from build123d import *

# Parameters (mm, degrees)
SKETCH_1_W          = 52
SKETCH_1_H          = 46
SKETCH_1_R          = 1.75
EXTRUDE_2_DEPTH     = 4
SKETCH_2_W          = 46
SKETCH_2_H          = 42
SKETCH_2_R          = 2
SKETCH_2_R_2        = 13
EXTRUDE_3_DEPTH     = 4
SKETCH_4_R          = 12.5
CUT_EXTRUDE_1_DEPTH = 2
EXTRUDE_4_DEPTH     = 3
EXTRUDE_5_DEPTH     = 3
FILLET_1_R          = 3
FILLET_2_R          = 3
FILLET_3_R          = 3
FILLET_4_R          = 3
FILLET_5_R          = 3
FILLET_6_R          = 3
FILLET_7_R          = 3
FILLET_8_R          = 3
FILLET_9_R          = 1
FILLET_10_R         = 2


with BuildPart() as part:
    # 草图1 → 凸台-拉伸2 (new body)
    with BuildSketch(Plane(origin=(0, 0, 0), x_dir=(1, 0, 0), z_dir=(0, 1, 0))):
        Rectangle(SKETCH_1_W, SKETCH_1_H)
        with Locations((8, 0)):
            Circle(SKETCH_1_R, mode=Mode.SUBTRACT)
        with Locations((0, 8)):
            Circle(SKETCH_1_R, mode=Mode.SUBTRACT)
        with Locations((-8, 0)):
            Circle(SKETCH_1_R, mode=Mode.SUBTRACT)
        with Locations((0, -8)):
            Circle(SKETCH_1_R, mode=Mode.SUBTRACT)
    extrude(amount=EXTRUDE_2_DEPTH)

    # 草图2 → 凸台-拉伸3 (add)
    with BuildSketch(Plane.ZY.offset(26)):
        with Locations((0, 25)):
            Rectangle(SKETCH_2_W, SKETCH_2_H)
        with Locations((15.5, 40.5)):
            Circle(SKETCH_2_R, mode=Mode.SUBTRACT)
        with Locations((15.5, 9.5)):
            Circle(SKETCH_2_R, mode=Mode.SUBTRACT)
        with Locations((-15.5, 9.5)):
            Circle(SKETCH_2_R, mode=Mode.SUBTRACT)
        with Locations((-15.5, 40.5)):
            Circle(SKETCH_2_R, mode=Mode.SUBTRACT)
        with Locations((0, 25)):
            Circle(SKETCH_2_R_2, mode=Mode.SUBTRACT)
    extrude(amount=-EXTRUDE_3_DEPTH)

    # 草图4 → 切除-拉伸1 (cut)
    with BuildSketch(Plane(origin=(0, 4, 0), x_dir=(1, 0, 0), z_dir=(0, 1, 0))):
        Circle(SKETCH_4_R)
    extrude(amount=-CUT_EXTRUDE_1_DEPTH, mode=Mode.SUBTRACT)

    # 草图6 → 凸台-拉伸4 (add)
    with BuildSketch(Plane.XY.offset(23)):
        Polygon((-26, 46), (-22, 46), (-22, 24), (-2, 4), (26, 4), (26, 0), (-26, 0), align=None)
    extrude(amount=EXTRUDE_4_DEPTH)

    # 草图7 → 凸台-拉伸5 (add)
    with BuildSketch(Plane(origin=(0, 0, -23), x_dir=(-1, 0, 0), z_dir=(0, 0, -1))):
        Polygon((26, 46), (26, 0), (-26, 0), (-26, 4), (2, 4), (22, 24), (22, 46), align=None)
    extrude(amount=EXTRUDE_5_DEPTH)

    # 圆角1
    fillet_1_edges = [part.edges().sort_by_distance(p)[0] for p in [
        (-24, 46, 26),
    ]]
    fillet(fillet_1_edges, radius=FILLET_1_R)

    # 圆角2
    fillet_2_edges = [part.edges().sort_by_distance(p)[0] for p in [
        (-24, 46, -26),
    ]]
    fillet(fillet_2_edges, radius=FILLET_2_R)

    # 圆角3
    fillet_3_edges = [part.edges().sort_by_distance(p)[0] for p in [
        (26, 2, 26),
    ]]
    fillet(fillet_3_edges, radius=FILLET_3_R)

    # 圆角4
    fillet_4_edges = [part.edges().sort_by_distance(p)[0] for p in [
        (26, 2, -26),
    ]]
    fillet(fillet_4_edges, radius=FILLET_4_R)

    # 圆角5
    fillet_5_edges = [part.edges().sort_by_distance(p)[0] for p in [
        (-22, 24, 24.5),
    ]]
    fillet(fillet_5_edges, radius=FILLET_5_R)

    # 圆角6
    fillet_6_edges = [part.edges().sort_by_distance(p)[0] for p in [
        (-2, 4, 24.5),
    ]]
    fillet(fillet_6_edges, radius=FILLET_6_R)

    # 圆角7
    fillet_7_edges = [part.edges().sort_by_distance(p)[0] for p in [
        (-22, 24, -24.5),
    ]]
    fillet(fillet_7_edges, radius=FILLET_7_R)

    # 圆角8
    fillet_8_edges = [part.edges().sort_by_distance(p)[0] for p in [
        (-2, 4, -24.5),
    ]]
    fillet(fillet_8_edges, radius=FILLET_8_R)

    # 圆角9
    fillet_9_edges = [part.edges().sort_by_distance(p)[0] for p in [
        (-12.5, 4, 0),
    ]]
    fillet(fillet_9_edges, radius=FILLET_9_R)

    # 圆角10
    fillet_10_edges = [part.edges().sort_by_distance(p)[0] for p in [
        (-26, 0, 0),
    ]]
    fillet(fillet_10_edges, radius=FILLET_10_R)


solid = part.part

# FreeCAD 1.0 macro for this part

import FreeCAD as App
import Part
import Sketcher
from FreeCAD import Vector
Q = App.Units.Quantity


def edges_at(feature, points):
    """Names of the edges that pass closest to the given points."""
    edges = feature.Shape.Edges
    near = lambda p: min(range(len(edges)), key=lambda i: edges[i].distToShape(Part.Vertex(*p))[0])
    return sorted({f"Edge{near(p) + 1}" for p in points})

doc = App.newDocument("Part")
params = doc.addObject("Spreadsheet::Sheet", "Params")
for row, (alias, value) in enumerate([
    ("sketch1_diameter", "3.5 mm"),
    ("sketch1_width", "52 mm"),
    ("sketch1_height", "46 mm"),
    ("pad1_length", "4 mm"),
    ("sketch2_diameter", "4 mm"),
    ("sketch2_diameter2", "26 mm"),
    ("sketch2_width", "42 mm"),
    ("sketch2_height", "46 mm"),
    ("pad2_length", "4 mm"),
    ("sketch3_diameter", "25 mm"),
    ("pocket1_length", "2 mm"),
    ("sketch4_width", "4 mm"),
    ("sketch4_width2", "52 mm"),
    ("sketch4_width3", "28 mm"),
    ("sketch4_height", "46 mm"),
    ("sketch4_height2", "22 mm"),
    ("pad3_length", "3 mm"),
    ("sketch5_width", "4 mm"),
    ("sketch5_width2", "28 mm"),
    ("sketch5_width3", "52 mm"),
    ("sketch5_height", "46 mm"),
    ("sketch5_height2", "22 mm"),
    ("pad4_length", "3 mm"),
    ("fillet_radius", "3 mm"),
    ("fillet2_radius", "3 mm"),
    ("fillet3_radius", "3 mm"),
    ("fillet4_radius", "3 mm"),
    ("fillet5_radius", "3 mm"),
    ("fillet6_radius", "3 mm"),
    ("fillet7_radius", "3 mm"),
    ("fillet8_radius", "3 mm"),
    ("fillet9_radius", "1 mm"),
    ("fillet10_radius", "2 mm"),
], start=1):
    params.set(f"A{row}", alias)
    params.set(f"B{row}", "=" + value)
    params.setAlias(f"B{row}", alias)

body = doc.addObject("PartDesign::Body", "Body")

sketch1 = body.newObject("Sketcher::SketchObject", "Sketch")
sketch1.AttachmentSupport = (doc.getObject("XZ_Plane"), [""])
sketch1.MapMode = "FlatFace"
sketch1.addGeometry([
    Part.LineSegment(Vector(-26, -23, 0), Vector(-26, 23, 0)),
    Part.LineSegment(Vector(-26, 23, 0), Vector(26, 23, 0)),
    Part.LineSegment(Vector(26, 23, 0), Vector(26, -23, 0)),
    Part.LineSegment(Vector(26, -23, 0), Vector(-26, -23, 0)),
    Part.Circle(Vector(0, 8, 0), Vector(0, 0, 1), 1.8),
    Part.Circle(Vector(-8, 0, 0), Vector(0, 0, 1), 1.8),
    Part.Circle(Vector(8, 0, 0), Vector(0, 0, 1), 1.8),
    Part.Circle(Vector(0, -8, 0), Vector(0, 0, 1), 1.8),
], False)
sketch1.addConstraint([
    Sketcher.Constraint("Coincident", 0, 2, 1, 1),
    Sketcher.Constraint("Coincident", 1, 2, 2, 1),
    Sketcher.Constraint("Coincident", 2, 2, 3, 1),
    Sketcher.Constraint("Coincident", 3, 2, 0, 1),
    Sketcher.Constraint("Vertical", 0),
    Sketcher.Constraint("Horizontal", 1),
    Sketcher.Constraint("Vertical", 2),
    Sketcher.Constraint("Horizontal", 3),
    Sketcher.Constraint("Equal", 4, 5),
    Sketcher.Constraint("Equal", 5, 6),
    Sketcher.Constraint("Equal", 6, 7),
    Sketcher.Constraint("Symmetric", 5, 3, 6, 3, -1, 1),
    Sketcher.Constraint("Symmetric", 4, 3, 7, 3, -1, 1),
    Sketcher.Constraint("Symmetric", 0, 2, 2, 2, -1, 1),
    Sketcher.Constraint("PointOnObject", 4, 3, -2),
    Sketcher.Constraint("PointOnObject", 5, 3, -1),
    Sketcher.Constraint("Diameter", 4, Q("3.5 mm")),
    Sketcher.Constraint("DistanceX", 1, 1, 1, 2, Q("52 mm")),
    Sketcher.Constraint("DistanceY", 0, 1, 0, 2, Q("46 mm")),
    Sketcher.Constraint("DistanceY", -1, 1, 4, 3, Q("8 mm")),
    Sketcher.Constraint("DistanceX", 5, 3, -1, 1, Q("8 mm")),
])
sketch1.setExpression("Constraints[16]", "Params.sketch1_diameter")
sketch1.setExpression("Constraints[17]", "Params.sketch1_width")
sketch1.setExpression("Constraints[18]", "Params.sketch1_height")
pad1 = body.newObject("PartDesign::Pad", "Pad")
pad1.Profile = sketch1
pad1.setExpression("Length", "Params.pad1_length")
pad1.Reversed = True

sketch2 = body.newObject("Sketcher::SketchObject", "Sketch001")
sketch2.AttachmentSupport = (doc.getObject("YZ_Plane"), [""])
sketch2.MapMode = "FlatFace"
sketch2.AttachmentOffset = App.Placement(Vector(0, 0, -26), App.Rotation())
sketch2.addGeometry([
    Part.LineSegment(Vector(46, -23, 0), Vector(4, -23, 0)),
    Part.LineSegment(Vector(4, -23, 0), Vector(4, 23, 0)),
    Part.LineSegment(Vector(4, 23, 0), Vector(46, 23, 0)),
    Part.LineSegment(Vector(46, 23, 0), Vector(46, -23, 0)),
    Part.Circle(Vector(9.5, -15.5, 0), Vector(0, 0, 1), 2),
    Part.Circle(Vector(9.5, 15.5, 0), Vector(0, 0, 1), 2),
    Part.Circle(Vector(40.5, -15.5, 0), Vector(0, 0, 1), 2),
    Part.Circle(Vector(25, 0, 0), Vector(0, 0, 1), 13),
    Part.Circle(Vector(40.5, 15.5, 0), Vector(0, 0, 1), 2),
], False)
sketch2.addConstraint([
    Sketcher.Constraint("Coincident", 0, 2, 1, 1),
    Sketcher.Constraint("Coincident", 1, 2, 2, 1),
    Sketcher.Constraint("Coincident", 2, 2, 3, 1),
    Sketcher.Constraint("Coincident", 3, 2, 0, 1),
    Sketcher.Constraint("Horizontal", 0),
    Sketcher.Constraint("Vertical", 1),
    Sketcher.Constraint("Horizontal", 2),
    Sketcher.Constraint("Vertical", 3),
    Sketcher.Constraint("Equal", 4, 5),
    Sketcher.Constraint("Equal", 5, 6),
    Sketcher.Constraint("Equal", 6, 8),
    Sketcher.Constraint("Symmetric", 4, 3, 5, 3, -1),
    Sketcher.Constraint("Symmetric", 6, 3, 8, 3, -1),
    Sketcher.Constraint("PointOnObject", 7, 3, -1),
    Sketcher.Constraint("Horizontal", 4, 3, 6, 3),
    Sketcher.Constraint("Diameter", 4, Q("4 mm")),
    Sketcher.Constraint("Diameter", 7, Q("26 mm")),
    Sketcher.Constraint("DistanceX", 0, 2, 0, 1, Q("42 mm")),
    Sketcher.Constraint("DistanceY", 1, 1, 1, 2, Q("46 mm")),
    Sketcher.Constraint("DistanceX", -1, 1, 7, 3, Q("25 mm")),
    Sketcher.Constraint("DistanceX", -1, 1, 0, 2, Q("4 mm")),
    Sketcher.Constraint("DistanceY", 0, 2, -1, 1, Q("23 mm")),
    Sketcher.Constraint("DistanceY", 4, 3, 5, 3, Q("31 mm")),
    Sketcher.Constraint("DistanceX", 4, 3, 6, 3, Q("31 mm")),
    Sketcher.Constraint("DistanceX", -1, 1, 4, 3, Q("9.5 mm")),
])
sketch2.setExpression("Constraints[15]", "Params.sketch2_diameter")
sketch2.setExpression("Constraints[16]", "Params.sketch2_diameter2")
sketch2.setExpression("Constraints[17]", "Params.sketch2_width")
sketch2.setExpression("Constraints[18]", "Params.sketch2_height")
pad2 = body.newObject("PartDesign::Pad", "Pad001")
pad2.Profile = sketch2
pad2.setExpression("Length", "Params.pad2_length")

sketch3 = body.newObject("Sketcher::SketchObject", "Sketch002")
sketch3.AttachmentSupport = (doc.getObject("XZ_Plane"), [""])
sketch3.MapMode = "FlatFace"
sketch3.AttachmentOffset = App.Placement(Vector(0, 0, -4), App.Rotation())
sketch3.addGeometry(Part.Circle(Vector(0, 0, 0), Vector(0, 0, 1), 12), False)
sketch3.addConstraint([
    Sketcher.Constraint("Coincident", 0, 3, -1, 1),
    Sketcher.Constraint("Diameter", 0, Q("25 mm")),
])
sketch3.setExpression("Constraints[1]", "Params.sketch3_diameter")
pocket1 = body.newObject("PartDesign::Pocket", "Pocket")
pocket1.Profile = sketch3
pocket1.setExpression("Length", "Params.pocket1_length")
pocket1.Reversed = True

sketch4 = body.newObject("Sketcher::SketchObject", "Sketch003")
sketch4.AttachmentSupport = (doc.getObject("XY_Plane"), [""])
sketch4.MapMode = "FlatFace"
sketch4.AttachmentOffset = App.Placement(Vector(0, 0, 23), App.Rotation())
sketch4.addGeometry([
    Part.LineSegment(Vector(-22, 46, 0), Vector(-26, 46, 0)),
    Part.LineSegment(Vector(-26, 46, 0), Vector(-26, 0, 0)),
    Part.LineSegment(Vector(-26, 0, 0), Vector(26, 0, 0)),
    Part.LineSegment(Vector(26, 0, 0), Vector(26, 4, 0)),
    Part.LineSegment(Vector(26, 4, 0), Vector(-2, 4, 0)),
    Part.LineSegment(Vector(-2, 4, 0), Vector(-22, 24, 0)),
    Part.LineSegment(Vector(-22, 24, 0), Vector(-22, 46, 0)),
], False)
sketch4.addConstraint([
    Sketcher.Constraint("Coincident", 0, 2, 1, 1),
    Sketcher.Constraint("Coincident", 1, 2, 2, 1),
    Sketcher.Constraint("Coincident", 2, 2, 3, 1),
    Sketcher.Constraint("Coincident", 3, 2, 4, 1),
    Sketcher.Constraint("Coincident", 4, 2, 5, 1),
    Sketcher.Constraint("Coincident", 5, 2, 6, 1),
    Sketcher.Constraint("Coincident", 6, 2, 0, 1),
    Sketcher.Constraint("Horizontal", 0),
    Sketcher.Constraint("Vertical", 1),
    Sketcher.Constraint("Horizontal", 2),
    Sketcher.Constraint("Vertical", 3),
    Sketcher.Constraint("Horizontal", 4),
    Sketcher.Constraint("Vertical", 6),
    Sketcher.Constraint("Symmetric", 1, 2, 2, 2, -1, 1),
    Sketcher.Constraint("Equal", 0, 3),
    Sketcher.Constraint("DistanceX", 0, 2, 0, 1, Q("4 mm")),
    Sketcher.Constraint("DistanceX", 2, 1, 2, 2, Q("52 mm")),
    Sketcher.Constraint("DistanceX", 4, 2, 4, 1, Q("28 mm")),
    Sketcher.Constraint("DistanceY", 1, 2, 1, 1, Q("46 mm")),
    Sketcher.Constraint("DistanceY", 6, 1, 6, 2, Q("22 mm")),
])
sketch4.setExpression("Constraints[15]", "Params.sketch4_width")
sketch4.setExpression("Constraints[16]", "Params.sketch4_width2")
sketch4.setExpression("Constraints[17]", "Params.sketch4_width3")
sketch4.setExpression("Constraints[18]", "Params.sketch4_height")
sketch4.setExpression("Constraints[19]", "Params.sketch4_height2")
pad3 = body.newObject("PartDesign::Pad", "Pad002")
pad3.Profile = sketch4
pad3.setExpression("Length", "Params.pad3_length")

sketch5 = body.newObject("Sketcher::SketchObject", "Sketch004")
sketch5.AttachmentSupport = (doc.getObject("XY_Plane"), [""])
sketch5.MapMode = "FlatFace"
sketch5.AttachmentOffset = App.Placement(Vector(0, 0, -23), App.Rotation())
sketch5.addGeometry([
    Part.LineSegment(Vector(-26, 0, 0), Vector(-26, 46, 0)),
    Part.LineSegment(Vector(-26, 46, 0), Vector(-22, 46, 0)),
    Part.LineSegment(Vector(-22, 46, 0), Vector(-22, 24, 0)),
    Part.LineSegment(Vector(-22, 24, 0), Vector(-2, 4, 0)),
    Part.LineSegment(Vector(-2, 4, 0), Vector(26, 4, 0)),
    Part.LineSegment(Vector(26, 4, 0), Vector(26, 0, 0)),
    Part.LineSegment(Vector(26, 0, 0), Vector(-26, 0, 0)),
], False)
sketch5.addConstraint([
    Sketcher.Constraint("Coincident", 0, 2, 1, 1),
    Sketcher.Constraint("Coincident", 1, 2, 2, 1),
    Sketcher.Constraint("Coincident", 2, 2, 3, 1),
    Sketcher.Constraint("Coincident", 3, 2, 4, 1),
    Sketcher.Constraint("Coincident", 4, 2, 5, 1),
    Sketcher.Constraint("Coincident", 5, 2, 6, 1),
    Sketcher.Constraint("Coincident", 6, 2, 0, 1),
    Sketcher.Constraint("Vertical", 0),
    Sketcher.Constraint("Horizontal", 1),
    Sketcher.Constraint("Vertical", 2),
    Sketcher.Constraint("Horizontal", 4),
    Sketcher.Constraint("Vertical", 5),
    Sketcher.Constraint("Horizontal", 6),
    Sketcher.Constraint("Symmetric", 5, 2, 6, 2, -1, 1),
    Sketcher.Constraint("Equal", 1, 5),
    Sketcher.Constraint("DistanceX", 1, 1, 1, 2, Q("4 mm")),
    Sketcher.Constraint("DistanceX", 4, 1, 4, 2, Q("28 mm")),
    Sketcher.Constraint("DistanceX", 6, 2, 6, 1, Q("52 mm")),
    Sketcher.Constraint("DistanceY", 0, 1, 0, 2, Q("46 mm")),
    Sketcher.Constraint("DistanceY", 2, 2, 2, 1, Q("22 mm")),
])
sketch5.setExpression("Constraints[15]", "Params.sketch5_width")
sketch5.setExpression("Constraints[16]", "Params.sketch5_width2")
sketch5.setExpression("Constraints[17]", "Params.sketch5_width3")
sketch5.setExpression("Constraints[18]", "Params.sketch5_height")
sketch5.setExpression("Constraints[19]", "Params.sketch5_height2")
pad4 = body.newObject("PartDesign::Pad", "Pad003")
pad4.Profile = sketch5
pad4.setExpression("Length", "Params.pad4_length")
pad4.Reversed = True
doc.recompute()

fillet = body.newObject("PartDesign::Fillet", "Fillet")
fillet.Base = (pad4, edges_at(pad4, [(-24, 46, 26)]))
fillet.setExpression("Radius", "Params.fillet_radius")
doc.recompute()

fillet2 = body.newObject("PartDesign::Fillet", "Fillet001")
fillet2.Base = (fillet, edges_at(fillet, [(-24, 46, -26)]))
fillet2.setExpression("Radius", "Params.fillet2_radius")
doc.recompute()

fillet3 = body.newObject("PartDesign::Fillet", "Fillet002")
fillet3.Base = (fillet2, edges_at(fillet2, [(26, 2, 26)]))
fillet3.setExpression("Radius", "Params.fillet3_radius")
doc.recompute()

fillet4 = body.newObject("PartDesign::Fillet", "Fillet003")
fillet4.Base = (fillet3, edges_at(fillet3, [(26, 2, -26)]))
fillet4.setExpression("Radius", "Params.fillet4_radius")
doc.recompute()

fillet5 = body.newObject("PartDesign::Fillet", "Fillet004")
fillet5.Base = (fillet4, edges_at(fillet4, [(-22, 24, 24.5)]))
fillet5.setExpression("Radius", "Params.fillet5_radius")
doc.recompute()

fillet6 = body.newObject("PartDesign::Fillet", "Fillet005")
fillet6.Base = (fillet5, edges_at(fillet5, [(-2, 4, 24.5)]))
fillet6.setExpression("Radius", "Params.fillet6_radius")
doc.recompute()

fillet7 = body.newObject("PartDesign::Fillet", "Fillet006")
fillet7.Base = (fillet6, edges_at(fillet6, [(-22, 24, -24.5)]))
fillet7.setExpression("Radius", "Params.fillet7_radius")
doc.recompute()

fillet8 = body.newObject("PartDesign::Fillet", "Fillet007")
fillet8.Base = (fillet7, edges_at(fillet7, [(-2, 4, -24.5)]))
fillet8.setExpression("Radius", "Params.fillet8_radius")
doc.recompute()

fillet9 = body.newObject("PartDesign::Fillet", "Fillet008")
fillet9.Base = (fillet8, edges_at(fillet8, [(-12.5, 4, 0)]))
fillet9.setExpression("Radius", "Params.fillet9_radius")
doc.recompute()

fillet10 = body.newObject("PartDesign::Fillet", "Fillet009")
fillet10.Base = (fillet9, edges_at(fillet9, [(-26, 0, 0)]))
fillet10.setExpression("Radius", "Params.fillet10_radius")

doc.recompute()
